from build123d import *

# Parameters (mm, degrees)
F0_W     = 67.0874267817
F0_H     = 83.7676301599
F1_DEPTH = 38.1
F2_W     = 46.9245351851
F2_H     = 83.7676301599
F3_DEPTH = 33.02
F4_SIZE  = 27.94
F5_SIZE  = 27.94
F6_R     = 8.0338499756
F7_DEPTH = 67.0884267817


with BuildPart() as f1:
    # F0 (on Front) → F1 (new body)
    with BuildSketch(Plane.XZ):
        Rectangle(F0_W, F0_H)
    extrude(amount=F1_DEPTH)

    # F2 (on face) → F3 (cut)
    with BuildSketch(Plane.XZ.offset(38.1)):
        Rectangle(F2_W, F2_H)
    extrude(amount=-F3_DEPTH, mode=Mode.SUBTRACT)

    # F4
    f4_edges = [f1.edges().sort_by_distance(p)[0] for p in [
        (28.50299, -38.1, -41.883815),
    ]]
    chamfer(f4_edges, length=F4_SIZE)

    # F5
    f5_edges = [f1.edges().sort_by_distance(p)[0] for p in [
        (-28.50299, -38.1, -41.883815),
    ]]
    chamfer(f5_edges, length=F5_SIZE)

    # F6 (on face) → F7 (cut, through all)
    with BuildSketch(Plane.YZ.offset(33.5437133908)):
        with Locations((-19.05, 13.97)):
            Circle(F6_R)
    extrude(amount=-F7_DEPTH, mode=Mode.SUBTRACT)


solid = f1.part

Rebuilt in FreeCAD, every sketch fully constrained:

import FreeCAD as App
import Part
import Sketcher

V = App.Vector
Q = App.Units.Quantity


def edges_at(feature, points):
    """Names of the edges that pass closest to the given points."""
    edges = feature.Shape.Edges
    near = lambda p: min(range(len(edges)), key=lambda i: edges[i].distToShape(Part.Vertex(*p))[0])
    return sorted({f"Edge{near(p) + 1}" for p in points})


def add_polygon(sketch, points):
    """Adds a closed chain of lines whose ends are joined by coincident constraints."""
    first, n = sketch.GeometryCount, len(points)
    for a, b in zip(points, points[1:] + points[:1]):
        sketch.addGeometry(Part.LineSegment(App.Vector(*a, 0), App.Vector(*b, 0)), False)
    for i in range(n):
        sketch.addConstraint(Sketcher.Constraint("Coincident", first + i, 2, first + (i + 1) % n, 1))

doc = App.newDocument("Part")
params = doc.addObject("Spreadsheet::Sheet", "Params")
for row, (alias, value) in enumerate([
    ("pad1_length", "1.5 in"),
    ("pocket1_length", "1.3 in"),
    ("chamfer_size", "1.1 in"),
    ("chamfer2_size", "1.1 in"),
], start=1):
    params.set(f"A{row}", alias)
    params.set(f"B{row}", "=" + value)
    params.setAlias(f"B{row}", alias)

body = doc.addObject("PartDesign::Body", "Body")

# Sketch on XZ plane
sketch1 = body.newObject("Sketcher::SketchObject", "Sketch")
sketch1.AttachmentSupport = (doc.getObject("XZ_Plane"), [""])
sketch1.MapMode = "FlatFace"
add_polygon(sketch1, [(-34, 42), (-34, -42), (34, -42), (34, 42)])  # lines 0-3
sketch1.addConstraint(Sketcher.Constraint("Vertical", 0))
sketch1.addConstraint(Sketcher.Constraint("Horizontal", 1))
sketch1.addConstraint(Sketcher.Constraint("Vertical", 2))
sketch1.addConstraint(Sketcher.Constraint("Horizontal", 3))
sketch1.addConstraint(Sketcher.Constraint("Symmetric", 0, 2, 2, 2, -1, 1))
sketch1.addConstraint(Sketcher.Constraint("DistanceY", 0, 2, 0, 1, Q("83.76763 mm")))
sketch1.addConstraint(Sketcher.Constraint("DistanceX", 1, 1, 1, 2, Q("67.087427 mm")))
pad1 = body.newObject("PartDesign::Pad", "Pad")
pad1.Profile = sketch1
pad1.setExpression("Length", "Params.pad1_length")

# Sketch on XZ plane
sketch2 = body.newObject("Sketcher::SketchObject", "Sketch001")
sketch2.AttachmentSupport = (doc.getObject("XZ_Plane"), [""])
sketch2.MapMode = "FlatFace"
sketch2.AttachmentOffset = App.Placement(V(0, 0, 1.5 * 25.4), App.Rotation())
add_polygon(sketch2, [(-23, 42), (-23, -42), (23, -42), (23, 42)])  # lines 0-3
sketch2.addConstraint(Sketcher.Constraint("Vertical", 0))
sketch2.addConstraint(Sketcher.Constraint("Horizontal", 1))
sketch2.addConstraint(Sketcher.Constraint("Vertical", 2))
sketch2.addConstraint(Sketcher.Constraint("Horizontal", 3))
sketch2.addConstraint(Sketcher.Constraint("Symmetric", 0, 2, 2, 2, -1, 1))
sketch2.addConstraint(Sketcher.Constraint("DistanceY", 0, 2, 0, 1, Q("83.76763 mm")))
sketch2.addConstraint(Sketcher.Constraint("DistanceX", 1, 1, 1, 2, Q("46.924535 mm")))
pocket1 = body.newObject("PartDesign::Pocket", "Pocket")
pocket1.Profile = sketch2
pocket1.setExpression("Length", "Params.pocket1_length")
doc.recompute()

chamfer = body.newObject("PartDesign::Chamfer", "Chamfer")
chamfer.Base = (pocket1, edges_at(pocket1, [(28.503, -38.1, -41.884)]))
chamfer.setExpression("Size", "Params.chamfer_size")
doc.recompute()

chamfer2 = body.newObject("PartDesign::Chamfer", "Chamfer001")
chamfer2.Base = (chamfer, edges_at(chamfer, [(-28.503, -38.1, -41.884)]))
chamfer2.setExpression("Size", "Params.chamfer2_size")

# Sketch on YZ plane
sketch3 = body.newObject("Sketcher::SketchObject", "Sketch002")
sketch3.AttachmentSupport = (doc.getObject("YZ_Plane"), [""])
sketch3.MapMode = "FlatFace"
sketch3.AttachmentOffset = App.Placement(V(0, 0, 33.543713), App.Rotation())
sketch3.addGeometry(Part.Circle(V(-19, 14, 0), V(0, 0, 1), 8), False)
sketch3.addConstraint(Sketcher.Constraint("Diameter", 0, Q("16.0677 mm")))
sketch3.addConstraint(Sketcher.Constraint("DistanceX", 0, 3, -1, 1, Q("0.75 in")))
sketch3.addConstraint(Sketcher.Constraint("DistanceY", -1, 1, 0, 3, Q("0.55 in")))
pocket2 = body.newObject("PartDesign::Pocket", "Pocket001")
pocket2.Profile = sketch3
pocket2.Type = "ThroughAll"

doc.recompute()
